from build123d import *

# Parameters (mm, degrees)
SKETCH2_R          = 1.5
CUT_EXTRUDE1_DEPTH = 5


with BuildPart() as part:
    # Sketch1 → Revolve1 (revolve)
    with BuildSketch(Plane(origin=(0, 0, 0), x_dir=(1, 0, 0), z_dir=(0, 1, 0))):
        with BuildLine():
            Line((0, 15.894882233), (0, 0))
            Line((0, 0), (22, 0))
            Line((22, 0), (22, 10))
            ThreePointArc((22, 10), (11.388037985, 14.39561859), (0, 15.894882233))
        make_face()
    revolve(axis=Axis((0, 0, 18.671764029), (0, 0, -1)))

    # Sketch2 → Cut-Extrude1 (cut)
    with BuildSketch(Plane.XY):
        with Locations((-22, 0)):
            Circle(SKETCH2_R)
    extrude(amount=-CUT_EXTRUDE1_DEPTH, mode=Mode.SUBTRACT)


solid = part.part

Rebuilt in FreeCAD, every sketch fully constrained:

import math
import FreeCAD as App
import Part
import Sketcher

V = App.Vector

doc = App.newDocument("Part")
body = doc.addObject("PartDesign::Body", "Body")

# Sketch on XZ plane
sketch1 = body.newObject("Sketcher::SketchObject", "Sketch")
sketch1.AttachmentSupport = (doc.getObject("XZ_Plane"), [""])
sketch1.MapMode = "FlatFace"
sketch1.addGeometry(Part.LineSegment(V(0, -16, 0), V(0, 0, 0)), False)
sketch1.addGeometry(Part.LineSegment(V(0, 0, 0), V(22, 0, 0)), False)
sketch1.addGeometry(Part.LineSegment(V(22, 0, 0), V(22, -10, 0)), False)
sketch1.addGeometry(Part.ArcOfCircle(Part.Circle(V(0, 28, 0), V(0, 0, 1), 44), math.radians(-90), math.radians(-60)), False)
sketch1.addConstraint(Sketcher.Constraint("Coincident", 0, 2, 1, 1))
sketch1.addConstraint(Sketcher.Constraint("Coincident", 1, 2, 2, 1))
sketch1.addConstraint(Sketcher.Constraint("Coincident", 2, 2, 3, 2))
sketch1.addConstraint(Sketcher.Constraint("Coincident", 3, 1, 0, 1))
sketch1.addConstraint(Sketcher.Constraint("Vertical", 0))
sketch1.addConstraint(Sketcher.Constraint("Horizontal", 1))
sketch1.addConstraint(Sketcher.Constraint("Vertical", 2))
sketch1.addConstraint(Sketcher.Constraint("Coincident", 0, 2, -1, 1))
sketch1.addConstraint(Sketcher.Constraint("PointOnObject", 3, 3, -2))
sketch1.addConstraint(Sketcher.Constraint("Radius", 3, 44.0))
sketch1.addConstraint(Sketcher.Constraint("DistanceX", 1, 1, 1, 2, 22.0))
sketch1.addConstraint(Sketcher.Constraint("DistanceY", 2, 2, 2, 1, 10.0))
revolution = body.newObject("PartDesign::Revolution", "Revolution")
revolution.Profile = sketch1
revolution.ReferenceAxis = (sketch1, ["V_Axis"])
revolution.Angle = 360

# Sketch on XY plane
sketch2 = body.newObject("Sketcher::SketchObject", "Sketch001")
sketch2.AttachmentSupport = (doc.getObject("XY_Plane"), [""])
sketch2.MapMode = "FlatFace"
sketch2.addGeometry(Part.Circle(V(-22, 0, 0), V(0, 0, 1), 1.5), False)
sketch2.addConstraint(Sketcher.Constraint("PointOnObject", 0, 3, -1))
sketch2.addConstraint(Sketcher.Constraint("Diameter", 0, 3.0))
sketch2.addConstraint(Sketcher.Constraint("DistanceX", 0, 3, -1, 1, 22.0))
pocket1 = body.newObject("PartDesign::Pocket", "Pocket")
pocket1.Profile = sketch2
pocket1.Length = 5

doc.recompute()
